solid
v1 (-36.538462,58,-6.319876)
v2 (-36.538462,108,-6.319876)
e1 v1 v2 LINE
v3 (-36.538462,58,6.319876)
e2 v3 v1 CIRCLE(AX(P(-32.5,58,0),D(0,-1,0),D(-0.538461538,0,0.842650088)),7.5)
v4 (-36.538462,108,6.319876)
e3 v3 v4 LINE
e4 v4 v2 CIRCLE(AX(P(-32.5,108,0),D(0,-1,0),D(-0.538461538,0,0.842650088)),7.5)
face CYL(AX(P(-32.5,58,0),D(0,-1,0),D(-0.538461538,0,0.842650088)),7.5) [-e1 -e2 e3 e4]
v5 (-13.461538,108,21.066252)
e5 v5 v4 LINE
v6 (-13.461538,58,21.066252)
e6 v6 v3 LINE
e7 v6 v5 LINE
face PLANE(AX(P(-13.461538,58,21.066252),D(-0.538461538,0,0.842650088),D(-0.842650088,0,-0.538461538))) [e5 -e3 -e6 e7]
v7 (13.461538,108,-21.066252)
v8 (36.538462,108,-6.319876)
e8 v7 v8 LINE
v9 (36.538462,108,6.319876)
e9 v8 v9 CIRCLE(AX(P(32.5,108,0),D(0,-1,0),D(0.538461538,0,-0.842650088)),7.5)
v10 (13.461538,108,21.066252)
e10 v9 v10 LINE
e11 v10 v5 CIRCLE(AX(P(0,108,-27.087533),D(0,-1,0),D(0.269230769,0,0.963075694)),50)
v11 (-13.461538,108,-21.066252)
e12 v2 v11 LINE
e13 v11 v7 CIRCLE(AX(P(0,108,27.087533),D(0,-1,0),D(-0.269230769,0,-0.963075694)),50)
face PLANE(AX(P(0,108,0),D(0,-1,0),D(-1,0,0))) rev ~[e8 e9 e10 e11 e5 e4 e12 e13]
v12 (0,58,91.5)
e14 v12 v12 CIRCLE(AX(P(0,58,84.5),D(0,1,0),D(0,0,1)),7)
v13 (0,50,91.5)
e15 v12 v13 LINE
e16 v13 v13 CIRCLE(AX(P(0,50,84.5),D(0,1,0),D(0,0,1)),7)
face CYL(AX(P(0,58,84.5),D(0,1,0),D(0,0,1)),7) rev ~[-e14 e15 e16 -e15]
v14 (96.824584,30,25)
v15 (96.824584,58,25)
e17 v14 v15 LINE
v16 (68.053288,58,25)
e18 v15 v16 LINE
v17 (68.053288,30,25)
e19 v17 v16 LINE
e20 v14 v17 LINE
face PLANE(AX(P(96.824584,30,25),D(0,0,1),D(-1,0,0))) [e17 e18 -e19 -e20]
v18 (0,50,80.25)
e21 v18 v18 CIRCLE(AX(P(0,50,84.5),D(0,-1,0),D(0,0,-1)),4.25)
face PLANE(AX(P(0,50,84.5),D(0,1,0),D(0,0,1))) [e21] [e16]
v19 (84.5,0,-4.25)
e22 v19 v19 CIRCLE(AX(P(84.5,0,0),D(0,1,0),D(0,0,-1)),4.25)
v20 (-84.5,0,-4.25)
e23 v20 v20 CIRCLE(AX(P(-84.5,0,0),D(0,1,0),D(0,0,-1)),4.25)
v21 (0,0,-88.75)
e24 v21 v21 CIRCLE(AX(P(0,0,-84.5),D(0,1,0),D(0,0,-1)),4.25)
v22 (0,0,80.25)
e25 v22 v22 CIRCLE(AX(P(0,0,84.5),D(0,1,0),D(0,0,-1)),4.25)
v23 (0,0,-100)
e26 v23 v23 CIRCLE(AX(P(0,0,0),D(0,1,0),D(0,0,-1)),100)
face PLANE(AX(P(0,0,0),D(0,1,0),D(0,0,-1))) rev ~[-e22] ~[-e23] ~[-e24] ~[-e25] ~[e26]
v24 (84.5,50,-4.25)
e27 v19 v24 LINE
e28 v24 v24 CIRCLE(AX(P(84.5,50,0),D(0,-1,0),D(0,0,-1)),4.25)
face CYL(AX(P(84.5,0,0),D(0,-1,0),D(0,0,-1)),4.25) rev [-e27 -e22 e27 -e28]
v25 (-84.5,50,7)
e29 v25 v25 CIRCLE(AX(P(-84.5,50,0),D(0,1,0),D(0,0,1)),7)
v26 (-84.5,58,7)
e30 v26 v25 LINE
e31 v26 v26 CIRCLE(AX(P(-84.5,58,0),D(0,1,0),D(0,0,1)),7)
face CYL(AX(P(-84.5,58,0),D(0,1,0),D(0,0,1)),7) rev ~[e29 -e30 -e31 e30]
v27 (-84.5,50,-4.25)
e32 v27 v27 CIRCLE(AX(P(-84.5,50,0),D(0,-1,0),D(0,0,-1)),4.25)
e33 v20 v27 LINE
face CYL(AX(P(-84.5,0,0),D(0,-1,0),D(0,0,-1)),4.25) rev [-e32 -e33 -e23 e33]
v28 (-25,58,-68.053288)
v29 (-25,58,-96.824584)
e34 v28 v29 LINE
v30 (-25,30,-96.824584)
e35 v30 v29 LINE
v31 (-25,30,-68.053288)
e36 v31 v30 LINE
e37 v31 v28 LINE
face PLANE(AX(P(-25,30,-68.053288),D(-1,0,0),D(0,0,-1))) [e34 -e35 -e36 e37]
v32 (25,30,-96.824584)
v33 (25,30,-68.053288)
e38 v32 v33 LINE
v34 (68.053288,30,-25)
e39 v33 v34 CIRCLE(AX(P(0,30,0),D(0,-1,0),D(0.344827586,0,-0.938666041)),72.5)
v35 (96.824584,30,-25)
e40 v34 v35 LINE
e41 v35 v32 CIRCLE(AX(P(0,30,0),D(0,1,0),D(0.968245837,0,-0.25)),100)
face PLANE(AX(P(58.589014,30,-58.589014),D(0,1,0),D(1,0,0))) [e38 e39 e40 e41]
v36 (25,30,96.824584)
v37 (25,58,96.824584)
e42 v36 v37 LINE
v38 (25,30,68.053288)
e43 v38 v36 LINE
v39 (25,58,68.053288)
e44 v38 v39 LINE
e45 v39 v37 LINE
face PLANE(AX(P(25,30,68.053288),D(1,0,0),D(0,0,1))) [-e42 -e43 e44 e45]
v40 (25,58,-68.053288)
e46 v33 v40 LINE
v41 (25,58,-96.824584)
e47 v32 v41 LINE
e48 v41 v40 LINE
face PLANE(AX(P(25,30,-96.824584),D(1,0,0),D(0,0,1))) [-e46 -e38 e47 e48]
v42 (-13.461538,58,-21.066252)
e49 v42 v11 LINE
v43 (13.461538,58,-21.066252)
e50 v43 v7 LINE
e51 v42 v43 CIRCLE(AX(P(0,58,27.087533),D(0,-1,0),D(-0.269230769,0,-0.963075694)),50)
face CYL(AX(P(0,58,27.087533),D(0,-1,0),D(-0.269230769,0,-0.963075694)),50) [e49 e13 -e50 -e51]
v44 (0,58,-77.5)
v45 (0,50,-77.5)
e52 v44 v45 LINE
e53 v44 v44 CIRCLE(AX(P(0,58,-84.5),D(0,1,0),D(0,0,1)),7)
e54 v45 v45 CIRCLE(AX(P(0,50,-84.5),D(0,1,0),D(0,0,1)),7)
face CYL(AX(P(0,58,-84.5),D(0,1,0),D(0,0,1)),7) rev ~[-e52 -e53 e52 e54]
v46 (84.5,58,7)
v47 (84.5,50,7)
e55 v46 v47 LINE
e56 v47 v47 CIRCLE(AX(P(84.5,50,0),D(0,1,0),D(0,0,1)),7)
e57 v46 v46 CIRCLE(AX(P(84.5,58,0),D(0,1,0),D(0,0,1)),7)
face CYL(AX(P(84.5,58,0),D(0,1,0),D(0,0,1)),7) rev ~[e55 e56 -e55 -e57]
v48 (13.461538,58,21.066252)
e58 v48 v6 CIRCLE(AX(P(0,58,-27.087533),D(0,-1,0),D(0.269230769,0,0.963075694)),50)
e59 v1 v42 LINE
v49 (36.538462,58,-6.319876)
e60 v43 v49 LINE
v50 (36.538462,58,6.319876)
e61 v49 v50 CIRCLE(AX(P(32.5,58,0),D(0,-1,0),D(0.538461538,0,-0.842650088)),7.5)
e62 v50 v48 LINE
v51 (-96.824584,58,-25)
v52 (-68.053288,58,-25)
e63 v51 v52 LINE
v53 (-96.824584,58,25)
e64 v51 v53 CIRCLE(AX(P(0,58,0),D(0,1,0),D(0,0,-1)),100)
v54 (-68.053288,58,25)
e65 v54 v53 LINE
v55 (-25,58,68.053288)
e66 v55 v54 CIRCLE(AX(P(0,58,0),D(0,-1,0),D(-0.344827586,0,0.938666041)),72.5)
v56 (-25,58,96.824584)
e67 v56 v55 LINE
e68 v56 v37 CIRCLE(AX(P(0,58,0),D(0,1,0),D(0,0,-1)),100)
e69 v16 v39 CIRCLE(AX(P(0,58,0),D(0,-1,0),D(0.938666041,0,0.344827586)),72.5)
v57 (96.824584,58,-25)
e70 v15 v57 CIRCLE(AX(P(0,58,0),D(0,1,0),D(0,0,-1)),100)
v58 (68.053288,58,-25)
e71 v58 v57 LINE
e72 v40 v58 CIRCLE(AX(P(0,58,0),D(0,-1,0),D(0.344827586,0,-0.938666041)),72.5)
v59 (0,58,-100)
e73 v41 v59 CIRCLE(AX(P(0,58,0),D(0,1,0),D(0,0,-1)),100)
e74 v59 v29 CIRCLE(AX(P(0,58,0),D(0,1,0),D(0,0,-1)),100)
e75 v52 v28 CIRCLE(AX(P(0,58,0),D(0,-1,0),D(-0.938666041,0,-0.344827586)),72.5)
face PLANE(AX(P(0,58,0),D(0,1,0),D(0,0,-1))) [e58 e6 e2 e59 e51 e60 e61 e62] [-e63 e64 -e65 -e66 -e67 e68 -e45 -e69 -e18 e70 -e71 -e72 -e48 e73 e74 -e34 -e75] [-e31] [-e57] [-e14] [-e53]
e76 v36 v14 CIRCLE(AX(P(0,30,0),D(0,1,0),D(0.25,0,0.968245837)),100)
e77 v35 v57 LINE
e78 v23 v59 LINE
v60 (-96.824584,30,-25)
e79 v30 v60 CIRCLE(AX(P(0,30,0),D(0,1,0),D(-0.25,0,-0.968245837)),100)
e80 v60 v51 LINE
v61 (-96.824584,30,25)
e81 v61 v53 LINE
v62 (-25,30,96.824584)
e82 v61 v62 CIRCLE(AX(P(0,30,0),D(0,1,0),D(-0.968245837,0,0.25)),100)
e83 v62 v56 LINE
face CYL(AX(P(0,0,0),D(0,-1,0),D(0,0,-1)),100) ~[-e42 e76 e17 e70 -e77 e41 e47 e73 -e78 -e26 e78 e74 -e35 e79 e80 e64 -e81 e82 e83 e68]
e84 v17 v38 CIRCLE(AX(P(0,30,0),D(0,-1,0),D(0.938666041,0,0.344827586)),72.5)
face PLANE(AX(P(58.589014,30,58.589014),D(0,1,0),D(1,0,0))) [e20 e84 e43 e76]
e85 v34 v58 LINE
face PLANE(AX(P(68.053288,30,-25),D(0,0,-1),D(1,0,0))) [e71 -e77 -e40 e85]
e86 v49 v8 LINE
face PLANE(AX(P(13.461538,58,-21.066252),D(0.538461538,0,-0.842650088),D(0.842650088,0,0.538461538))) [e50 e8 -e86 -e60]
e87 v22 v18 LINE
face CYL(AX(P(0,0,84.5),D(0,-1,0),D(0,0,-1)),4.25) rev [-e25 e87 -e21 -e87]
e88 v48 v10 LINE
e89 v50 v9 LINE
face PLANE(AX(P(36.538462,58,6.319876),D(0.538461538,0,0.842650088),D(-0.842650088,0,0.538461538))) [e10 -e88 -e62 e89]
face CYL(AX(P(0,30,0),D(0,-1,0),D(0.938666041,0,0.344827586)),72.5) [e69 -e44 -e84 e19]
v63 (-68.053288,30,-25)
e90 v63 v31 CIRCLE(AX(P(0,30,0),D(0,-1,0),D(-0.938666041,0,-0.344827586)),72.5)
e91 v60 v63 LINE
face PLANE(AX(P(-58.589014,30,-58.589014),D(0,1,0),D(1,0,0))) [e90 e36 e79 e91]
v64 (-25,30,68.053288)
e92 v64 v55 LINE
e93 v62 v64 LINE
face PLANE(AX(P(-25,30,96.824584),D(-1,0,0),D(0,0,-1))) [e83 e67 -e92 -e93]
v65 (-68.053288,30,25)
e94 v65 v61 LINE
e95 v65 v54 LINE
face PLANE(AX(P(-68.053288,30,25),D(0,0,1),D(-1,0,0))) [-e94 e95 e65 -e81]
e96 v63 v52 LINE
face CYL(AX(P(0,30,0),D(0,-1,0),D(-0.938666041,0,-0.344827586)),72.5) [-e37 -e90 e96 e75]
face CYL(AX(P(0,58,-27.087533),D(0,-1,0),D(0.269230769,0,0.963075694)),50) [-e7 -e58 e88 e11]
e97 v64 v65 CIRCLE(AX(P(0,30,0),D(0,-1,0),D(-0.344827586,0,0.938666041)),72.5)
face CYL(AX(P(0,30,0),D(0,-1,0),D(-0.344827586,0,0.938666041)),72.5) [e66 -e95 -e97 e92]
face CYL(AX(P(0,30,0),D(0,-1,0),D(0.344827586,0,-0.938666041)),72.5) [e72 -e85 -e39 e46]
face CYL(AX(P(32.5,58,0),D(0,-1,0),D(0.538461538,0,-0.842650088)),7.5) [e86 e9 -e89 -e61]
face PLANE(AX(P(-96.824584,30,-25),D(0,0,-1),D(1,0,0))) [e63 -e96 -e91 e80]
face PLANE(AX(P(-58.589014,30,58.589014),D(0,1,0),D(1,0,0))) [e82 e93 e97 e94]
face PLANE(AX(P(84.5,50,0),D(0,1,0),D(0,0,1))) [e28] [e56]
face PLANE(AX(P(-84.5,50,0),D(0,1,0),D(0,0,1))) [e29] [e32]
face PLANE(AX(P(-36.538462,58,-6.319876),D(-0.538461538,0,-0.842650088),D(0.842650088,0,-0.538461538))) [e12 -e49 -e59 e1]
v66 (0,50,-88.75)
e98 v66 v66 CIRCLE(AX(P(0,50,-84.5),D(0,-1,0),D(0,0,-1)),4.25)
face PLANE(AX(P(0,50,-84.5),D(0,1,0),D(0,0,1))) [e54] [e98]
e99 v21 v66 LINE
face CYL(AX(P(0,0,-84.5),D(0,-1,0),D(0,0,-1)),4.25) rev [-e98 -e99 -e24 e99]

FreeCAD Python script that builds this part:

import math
import FreeCAD as App
import Part
import Sketcher
from FreeCAD import Vector
Q = App.Units.Quantity

doc = App.newDocument("Part")
body = doc.addObject("PartDesign::Body", "Body")

# Sketch on XZ plane
sketch1 = body.newObject("Sketcher::SketchObject", "Sketch")
sketch1.AttachmentSupport = (doc.getObject("XZ_Plane"), [""])
sketch1.MapMode = "FlatFace"
sketch1.addGeometry([
    Part.Circle(Vector(0, 0, 0), Vector(0, 0, 1), 100),  # 0
    Part.Circle(Vector(0, 84.5, 0), Vector(0, 0, 1), 4.25),  # 1
    Part.Circle(Vector(84.5, 0, 0), Vector(0, 0, 1), 4.25),  # 2
    Part.Circle(Vector(-84.5, 0, 0), Vector(0, 0, 1), 4.25),  # 3
    Part.Circle(Vector(0, -84.5, 0), Vector(0, 0, 1), 4.25),  # 4
], False)
sketch1.addConstraint([
    Sketcher.Constraint("Coincident", 0, 3, -1, 1),
    Sketcher.Constraint("Equal", 1, 2),
    Sketcher.Constraint("Equal", 2, 3),
    Sketcher.Constraint("Equal", 3, 4),
    Sketcher.Constraint("Symmetric", 2, 3, 3, 3, -1, 1),
    Sketcher.Constraint("Symmetric", 1, 3, 4, 3, -1, 1),
    Sketcher.Constraint("PointOnObject", 1, 3, -2),
    Sketcher.Constraint("PointOnObject", 2, 3, -1),
    Sketcher.Constraint("Diameter", 0, Q("200 mm")),
    Sketcher.Constraint("Diameter", 1, Q("8.5 mm")),
    Sketcher.Constraint("DistanceX", 3, 3, 2, 3, Q("169 mm")),
    Sketcher.Constraint("DistanceY", 4, 3, 1, 3, Q("169 mm")),
])
pad1 = body.newObject("PartDesign::Pad", "Pad")
pad1.Profile = sketch1
pad1.Length = 58
pad1.Reversed = True

# Sketch on XZ plane
sketch2 = body.newObject("Sketcher::SketchObject", "Sketch001")
sketch2.AttachmentSupport = (doc.getObject("XZ_Plane"), [""])
sketch2.MapMode = "FlatFace"
sketch2.AttachmentOffset = App.Placement(Vector(0, 0, -58), App.Rotation())
sketch2.addGeometry([
    Part.Circle(Vector(0, -84.5, 0), Vector(0, 0, 1), 7),
    Part.Circle(Vector(84.5, 0, 0), Vector(0, 0, 1), 7),
    Part.Circle(Vector(0, 84.5, 0), Vector(0, 0, 1), 7),
    Part.Circle(Vector(-84.5, 0, 0), Vector(0, 0, 1), 7),
], False)
sketch2.addConstraint([
    Sketcher.Constraint("Equal", 0, 1),
    Sketcher.Constraint("Equal", 1, 2),
    Sketcher.Constraint("Equal", 2, 3),
    Sketcher.Constraint("Symmetric", 0, 3, 2, 3, -1, 1),
    Sketcher.Constraint("Symmetric", 1, 3, 3, 3, -1, 1),
    Sketcher.Constraint("PointOnObject", 0, 3, -2),
    Sketcher.Constraint("PointOnObject", 1, 3, -1),
    Sketcher.Constraint("Diameter", 0, Q("14 mm")),
    Sketcher.Constraint("DistanceY", 0, 3, 2, 3, Q("169 mm")),
    Sketcher.Constraint("DistanceX", 3, 3, 1, 3, Q("169 mm")),
])
pocket1 = body.newObject("PartDesign::Pocket", "Pocket")
pocket1.Profile = sketch2
pocket1.Length = 8
pocket1.Reversed = True

# Sketch on XZ plane
sketch3 = body.newObject("Sketcher::SketchObject", "Sketch002")
sketch3.AttachmentSupport = (doc.getObject("XZ_Plane"), [""])
sketch3.MapMode = "FlatFace"
sketch3.AttachmentOffset = App.Placement(Vector(0, 0, -30), App.Rotation())
sketch3.addGeometry([
    Part.LineSegment(Vector(-25, -68.053288, 0), Vector(-25, -96.824584, 0)),  # 0
    Part.ArcOfCircle(Part.Circle(Vector(0, 0, 0), Vector(0, 0, 1), 100), math.radians(-165.522488), math.radians(-104.477512)),  # 1
    Part.LineSegment(Vector(-96.824584, -25, 0), Vector(-68.053288, -25, 0)),  # 2
    Part.ArcOfCircle(Part.Circle(Vector(0, 0, 0), Vector(0, 0, 1), 72.5), math.radians(-159.828729), math.radians(-110.171271)),  # 3
    Part.LineSegment(Vector(68.053288, -25, 0), Vector(96.824584, -25, 0)),  # 4
    Part.ArcOfCircle(Part.Circle(Vector(0, 0, 0), Vector(0, 0, 1), 100), math.radians(-75.522488), math.radians(-14.477512)),  # 5
    Part.LineSegment(Vector(25, -96.824584, 0), Vector(25, -68.053288, 0)),  # 6
    Part.ArcOfCircle(Part.Circle(Vector(0, 0, 0), Vector(0, 0, 1), 72.5), math.radians(-69.828729), math.radians(-20.171271)),  # 7
    Part.ArcOfCircle(Part.Circle(Vector(0, 0, 0), Vector(0, 0, 1), 100), math.radians(14.477512), math.radians(75.522488)),  # 8
    Part.LineSegment(Vector(96.824584, 25, 0), Vector(68.053288, 25, 0)),  # 9
    Part.ArcOfCircle(Part.Circle(Vector(0, 0, 0), Vector(0, 0, 1), 72.5), math.radians(20.171271), math.radians(69.828729)),  # 10
    Part.LineSegment(Vector(25, 68.053288, 0), Vector(25, 96.824584, 0)),  # 11
    Part.ArcOfCircle(Part.Circle(Vector(0, 0, 0), Vector(0, 0, 1), 100), math.radians(104.477512), math.radians(165.522488)),  # 12
    Part.LineSegment(Vector(-25, 96.824584, 0), Vector(-25, 68.053288, 0)),  # 13
    Part.ArcOfCircle(Part.Circle(Vector(0, 0, 0), Vector(0, 0, 1), 72.5), math.radians(110.171271), math.radians(159.828729)),  # 14
    Part.LineSegment(Vector(-68.053288, 25, 0), Vector(-96.824584, 25, 0)),  # 15
], False)
sketch3.addConstraint([
    Sketcher.Constraint("Coincident", 0, 2, 1, 2),
    Sketcher.Constraint("Coincident", 1, 1, 2, 1),
    Sketcher.Constraint("Coincident", 2, 2, 3, 1),
    Sketcher.Constraint("Coincident", 3, 2, 0, 1),
    Sketcher.Constraint("Coincident", 4, 2, 5, 2),
    Sketcher.Constraint("Coincident", 5, 1, 6, 1),
    Sketcher.Constraint("Coincident", 6, 2, 7, 1),
    Sketcher.Constraint("Coincident", 7, 2, 4, 1),
    Sketcher.Constraint("Coincident", 8, 1, 9, 1),
    Sketcher.Constraint("Coincident", 9, 2, 10, 1),
    Sketcher.Constraint("Coincident", 10, 2, 11, 1),
    Sketcher.Constraint("Coincident", 11, 2, 8, 2),
    Sketcher.Constraint("Coincident", 12, 1, 13, 1),
    Sketcher.Constraint("Coincident", 13, 2, 14, 1),
    Sketcher.Constraint("Coincident", 14, 2, 15, 1),
    Sketcher.Constraint("Coincident", 15, 2, 12, 2),
    Sketcher.Constraint("Vertical", 0),
    Sketcher.Constraint("Horizontal", 2),
    Sketcher.Constraint("Horizontal", 4),
    Sketcher.Constraint("Vertical", 6),
    Sketcher.Constraint("Horizontal", 9),
    Sketcher.Constraint("Vertical", 11),
    Sketcher.Constraint("Vertical", 13),
    Sketcher.Constraint("Horizontal", 15),
    Sketcher.Constraint("Coincident", 1, 3, -1, 1),
    Sketcher.Constraint("Coincident", 3, 3, -1, 1),
    Sketcher.Constraint("Coincident", 5, 3, -1, 1),
    Sketcher.Constraint("Coincident", 7, 3, -1, 1),
    Sketcher.Constraint("Coincident", 8, 3, -1, 1),
    Sketcher.Constraint("Coincident", 10, 3, -1, 1),
    Sketcher.Constraint("Coincident", 12, 3, -1, 1),
    Sketcher.Constraint("Coincident", 14, 3, -1, 1),
    Sketcher.Constraint("Equal", 1, 5),
    Sketcher.Constraint("Equal", 3, 7),
    Sketcher.Constraint("Equal", 5, 8),
    Sketcher.Constraint("Equal", 7, 10),
    Sketcher.Constraint("Equal", 8, 12),
    Sketcher.Constraint("Equal", 10, 14),
    Sketcher.Constraint("Horizontal", 2, 2, 4, 2),
    Sketcher.Constraint("Horizontal", 0, 2, 5, 1),
    Sketcher.Constraint("Horizontal", 11, 2, 12, 1),
    Sketcher.Constraint("Horizontal", 9, 2, 14, 2),
    Sketcher.Constraint("Vertical", 4, 2, 8, 1),
    Sketcher.Constraint("Vertical", 6, 2, 10, 2),
    Sketcher.Constraint("Equal", 15, 0),
    Sketcher.Constraint("Radius", 1, Q("100 mm")),
    Sketcher.Constraint("Radius", 3, Q("72.5 mm")),
    Sketcher.Constraint("DistanceX", 0, 2, -1, 1, Q("25 mm")),
])
pocket2 = body.newObject("PartDesign::Pocket", "Pocket001")
pocket2.Profile = sketch3
pocket2.Length = 28

# Sketch on XZ plane
sketch4 = body.newObject("Sketcher::SketchObject", "Sketch003")
sketch4.AttachmentSupport = (doc.getObject("XZ_Plane"), [""])
sketch4.MapMode = "FlatFace"
sketch4.AttachmentOffset = App.Placement(Vector(0, 0, -58), App.Rotation())
sketch4.addGeometry([
    Part.LineSegment(Vector(-13.461538, -21.066252, 0), Vector(-36.538462, -6.319876, 0)),  # 0
    Part.ArcOfCircle(Part.Circle(Vector(-32.5, 0, 0), Vector(0, 0, 1), 7.5), math.radians(122.57897), math.radians(237.42103)),  # 1
    Part.LineSegment(Vector(-36.538462, 6.319876, 0), Vector(-13.461538, 21.066252, 0)),  # 2
    Part.ArcOfCircle(Part.Circle(Vector(0, -27.087533, 0), Vector(0, 0, 1), 50), math.radians(74.381502), math.radians(105.618498)),  # 3
    Part.LineSegment(Vector(13.461538, 21.066252, 0), Vector(36.538462, 6.319876, 0)),  # 4
    Part.ArcOfCircle(Part.Circle(Vector(32.5, 0, 0), Vector(0, 0, 1), 7.5), math.radians(-57.42103), math.radians(57.42103)),  # 5
    Part.LineSegment(Vector(36.538462, -6.319876, 0), Vector(13.461538, -21.066252, 0)),  # 6
    Part.ArcOfCircle(Part.Circle(Vector(0, 27.087533, 0), Vector(0, 0, 1), 50), math.radians(-105.618498), math.radians(-74.381502)),  # 7
], False)
sketch4.addConstraint([
    Sketcher.Constraint("Tangent", 0, 2, 1, 2),
    Sketcher.Constraint("Tangent", 1, 1, 2, 1),
    Sketcher.Constraint("Coincident", 2, 2, 3, 2),
    Sketcher.Constraint("Coincident", 3, 1, 4, 1),
    Sketcher.Constraint("Tangent", 4, 2, 5, 2),
    Sketcher.Constraint("Tangent", 5, 1, 6, 1),
    Sketcher.Constraint("Coincident", 6, 2, 7, 2),
    Sketcher.Constraint("Coincident", 7, 1, 0, 1),
    Sketcher.Constraint("Equal", 1, 5),
    Sketcher.Constraint("Equal", 3, 7),
    Sketcher.Constraint("Symmetric", 1, 3, 5, 3, -1, 1),
    Sketcher.Constraint("Symmetric", 3, 3, 7, 3, -1, 1),
    Sketcher.Constraint("Symmetric", 2, 2, 3, 1, -2),
    Sketcher.Constraint("Symmetric", 0, 2, 5, 1, -2),
    Sketcher.Constraint("Parallel", 0, 4),
    Sketcher.Constraint("Radius", 3, Q("50 mm")),
    Sketcher.Constraint("Radius", 1, Q("7.5 mm")),
    Sketcher.Constraint("DistanceX", 1, 3, 5, 3, Q("65 mm")),
    Sketcher.Constraint("DistanceX", 2, 2, 4, 2, Q("50 mm")),
    Sketcher.Constraint("DistanceX", 0, 2, -1, 1, Q("36.538462 mm")),
])
pad2 = body.newObject("PartDesign::Pad", "Pad001")
pad2.Profile = sketch4
pad2.Length = 50
pad2.Reversed = True

doc.recompute()
